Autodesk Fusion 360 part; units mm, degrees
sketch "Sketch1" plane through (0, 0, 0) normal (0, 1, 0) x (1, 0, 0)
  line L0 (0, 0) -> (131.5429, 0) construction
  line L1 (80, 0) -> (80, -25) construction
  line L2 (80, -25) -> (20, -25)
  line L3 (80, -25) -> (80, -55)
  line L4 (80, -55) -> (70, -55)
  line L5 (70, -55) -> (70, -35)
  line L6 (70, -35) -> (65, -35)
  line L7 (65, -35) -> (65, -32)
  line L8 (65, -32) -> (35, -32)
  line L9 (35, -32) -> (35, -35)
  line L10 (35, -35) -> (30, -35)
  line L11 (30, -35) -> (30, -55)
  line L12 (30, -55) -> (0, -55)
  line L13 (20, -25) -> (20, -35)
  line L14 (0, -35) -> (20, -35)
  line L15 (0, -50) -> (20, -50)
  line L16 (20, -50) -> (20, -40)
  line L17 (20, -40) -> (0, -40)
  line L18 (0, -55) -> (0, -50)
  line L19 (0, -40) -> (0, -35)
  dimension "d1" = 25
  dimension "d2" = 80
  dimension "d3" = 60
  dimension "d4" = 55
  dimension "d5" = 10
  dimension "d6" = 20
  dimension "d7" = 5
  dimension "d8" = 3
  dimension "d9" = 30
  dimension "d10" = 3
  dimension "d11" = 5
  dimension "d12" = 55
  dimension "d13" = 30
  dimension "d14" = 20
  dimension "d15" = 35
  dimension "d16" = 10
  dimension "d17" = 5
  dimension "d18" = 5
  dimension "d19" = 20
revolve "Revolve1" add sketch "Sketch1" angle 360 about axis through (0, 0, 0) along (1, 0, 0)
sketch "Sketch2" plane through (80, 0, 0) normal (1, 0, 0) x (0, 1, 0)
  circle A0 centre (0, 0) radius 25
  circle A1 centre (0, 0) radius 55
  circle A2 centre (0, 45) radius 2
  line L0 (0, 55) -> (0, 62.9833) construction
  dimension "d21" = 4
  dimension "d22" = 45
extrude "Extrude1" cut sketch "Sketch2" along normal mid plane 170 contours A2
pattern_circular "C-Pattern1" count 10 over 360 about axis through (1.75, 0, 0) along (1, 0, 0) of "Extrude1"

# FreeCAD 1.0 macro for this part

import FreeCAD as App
import Part
import Sketcher

V = App.Vector

doc = App.newDocument("Part")
body = doc.addObject("PartDesign::Body", "Body")

# Sketch on XZ plane
sketch1 = body.newObject("Sketcher::SketchObject", "Sketch")
sketch1.AttachmentSupport = (doc.getObject("XZ_Plane"), [""])
sketch1.MapMode = "FlatFace"
sketch1.addGeometry([
    Part.LineSegment(V(80, 55, 0), V(80, 25, 0)),  # 0
    Part.LineSegment(V(80, 25, 0), V(20, 25, 0)),  # 1
    Part.LineSegment(V(20, 25, 0), V(20, 35, 0)),  # 2
    Part.LineSegment(V(20, 35, 0), V(0, 35, 0)),  # 3
    Part.LineSegment(V(0, 35, 0), V(0, 40, 0)),  # 4
    Part.LineSegment(V(0, 40, 0), V(20, 40, 0)),  # 5
    Part.LineSegment(V(20, 40, 0), V(20, 50, 0)),  # 6
    Part.LineSegment(V(20, 50, 0), V(0, 50, 0)),  # 7
    Part.LineSegment(V(0, 50, 0), V(0, 55, 0)),  # 8
    Part.LineSegment(V(0, 55, 0), V(30, 55, 0)),  # 9
    Part.LineSegment(V(30, 55, 0), V(30, 35, 0)),  # 10
    Part.LineSegment(V(30, 35, 0), V(35, 35, 0)),  # 11
    Part.LineSegment(V(35, 35, 0), V(35, 32, 0)),  # 12
    Part.LineSegment(V(35, 32, 0), V(65, 32, 0)),  # 13
    Part.LineSegment(V(65, 32, 0), V(65, 35, 0)),  # 14
    Part.LineSegment(V(65, 35, 0), V(70, 35, 0)),  # 15
    Part.LineSegment(V(70, 35, 0), V(70, 55, 0)),  # 16
    Part.LineSegment(V(70, 55, 0), V(80, 55, 0)),  # 17
], False)
sketch1.addConstraint([
    Sketcher.Constraint("Coincident", 0, 2, 1, 1),
    Sketcher.Constraint("Coincident", 1, 2, 2, 1),
    Sketcher.Constraint("Coincident", 2, 2, 3, 1),
    Sketcher.Constraint("Coincident", 3, 2, 4, 1),
    Sketcher.Constraint("Coincident", 4, 2, 5, 1),
    Sketcher.Constraint("Coincident", 5, 2, 6, 1),
    Sketcher.Constraint("Coincident", 6, 2, 7, 1),
    Sketcher.Constraint("Coincident", 7, 2, 8, 1),
    Sketcher.Constraint("Coincident", 8, 2, 9, 1),
    Sketcher.Constraint("Coincident", 9, 2, 10, 1),
    Sketcher.Constraint("Coincident", 10, 2, 11, 1),
    Sketcher.Constraint("Coincident", 11, 2, 12, 1),
    Sketcher.Constraint("Coincident", 12, 2, 13, 1),
    Sketcher.Constraint("Coincident", 13, 2, 14, 1),
    Sketcher.Constraint("Coincident", 14, 2, 15, 1),
    Sketcher.Constraint("Coincident", 15, 2, 16, 1),
    Sketcher.Constraint("Coincident", 16, 2, 17, 1),
    Sketcher.Constraint("Coincident", 17, 2, 0, 1),
    Sketcher.Constraint("Vertical", 0),
    Sketcher.Constraint("Horizontal", 1),
    Sketcher.Constraint("Vertical", 2),
    Sketcher.Constraint("Horizontal", 3),
    Sketcher.Constraint("Vertical", 4),
    Sketcher.Constraint("Horizontal", 5),
    Sketcher.Constraint("Vertical", 6),
    Sketcher.Constraint("Horizontal", 7),
    Sketcher.Constraint("Vertical", 8),
    Sketcher.Constraint("Horizontal", 9),
    Sketcher.Constraint("Vertical", 10),
    Sketcher.Constraint("Horizontal", 11),
    Sketcher.Constraint("Vertical", 12),
    Sketcher.Constraint("Horizontal", 13),
    Sketcher.Constraint("Vertical", 14),
    Sketcher.Constraint("Horizontal", 15),
    Sketcher.Constraint("Vertical", 16),
    Sketcher.Constraint("Horizontal", 17),
    Sketcher.Constraint("PointOnObject", 3, 2, -2),
    Sketcher.Constraint("PointOnObject", 7, 2, -2),
    Sketcher.Constraint("Horizontal", 3, 2, 10, 2),
    Sketcher.Constraint("Horizontal", 11, 2, 14, 2),
    Sketcher.Constraint("Horizontal", 9, 2, 16, 2),
    Sketcher.Constraint("Vertical", 2, 2, 5, 2),
    Sketcher.Constraint("Equal", 9, 13),
    Sketcher.Constraint("Equal", 11, 15),
    Sketcher.Constraint("Equal", 13, 0),
    Sketcher.Constraint("Equal", 17, 2),
    Sketcher.Constraint("Equal", 15, 4),
    Sketcher.Constraint("Equal", 2, 6),
    Sketcher.Constraint("Equal", 4, 8),
    Sketcher.Constraint("Equal", 7, 10),
    Sketcher.Constraint("DistanceX", 1, 2, 1, 1, 60.0),
    Sketcher.Constraint("DistanceX", 3, 2, 3, 1, 20.0),
    Sketcher.Constraint("DistanceY", 12, 2, 12, 1, 3.0),
    Sketcher.Constraint("DistanceY", -1, 1, 0, 2, 25.0),
])
revolution = body.newObject("PartDesign::Revolution", "Revolution")
revolution.Profile = sketch1
revolution.ReferenceAxis = (sketch1, ["H_Axis"])
revolution.Angle = 360

# Sketch on YZ plane
sketch2 = body.newObject("Sketcher::SketchObject", "Sketch001")
sketch2.AttachmentSupport = (doc.getObject("YZ_Plane"), [""])
sketch2.MapMode = "FlatFace"
sketch2.AttachmentOffset = App.Placement(V(0, 0, 80), App.Rotation())
sketch2.addGeometry(Part.Circle(V(0, 45, 0), V(0, 0, 1), 2), False)
sketch2.addConstraint([
    Sketcher.Constraint("PointOnObject", 0, 3, -2),
    Sketcher.Constraint("Diameter", 0, 4.0),
    Sketcher.Constraint("DistanceY", -1, 1, 0, 3, 45.0),
])
pocket1 = body.newObject("PartDesign::Pocket", "Pocket")
pocket1.Profile = sketch2
pocket1.Length = 170
pocket1.Midplane = True
doc.recompute()

polarpattern = body.newObject("PartDesign::PolarPattern", "PolarPattern")
polarpattern.Originals = [pocket1]
polarpattern.Axis = (doc.getObject("X_Axis"), [""])
polarpattern.Angle = 360
polarpattern.Occurrences = 10
body.Tip = polarpattern

doc.recompute()
